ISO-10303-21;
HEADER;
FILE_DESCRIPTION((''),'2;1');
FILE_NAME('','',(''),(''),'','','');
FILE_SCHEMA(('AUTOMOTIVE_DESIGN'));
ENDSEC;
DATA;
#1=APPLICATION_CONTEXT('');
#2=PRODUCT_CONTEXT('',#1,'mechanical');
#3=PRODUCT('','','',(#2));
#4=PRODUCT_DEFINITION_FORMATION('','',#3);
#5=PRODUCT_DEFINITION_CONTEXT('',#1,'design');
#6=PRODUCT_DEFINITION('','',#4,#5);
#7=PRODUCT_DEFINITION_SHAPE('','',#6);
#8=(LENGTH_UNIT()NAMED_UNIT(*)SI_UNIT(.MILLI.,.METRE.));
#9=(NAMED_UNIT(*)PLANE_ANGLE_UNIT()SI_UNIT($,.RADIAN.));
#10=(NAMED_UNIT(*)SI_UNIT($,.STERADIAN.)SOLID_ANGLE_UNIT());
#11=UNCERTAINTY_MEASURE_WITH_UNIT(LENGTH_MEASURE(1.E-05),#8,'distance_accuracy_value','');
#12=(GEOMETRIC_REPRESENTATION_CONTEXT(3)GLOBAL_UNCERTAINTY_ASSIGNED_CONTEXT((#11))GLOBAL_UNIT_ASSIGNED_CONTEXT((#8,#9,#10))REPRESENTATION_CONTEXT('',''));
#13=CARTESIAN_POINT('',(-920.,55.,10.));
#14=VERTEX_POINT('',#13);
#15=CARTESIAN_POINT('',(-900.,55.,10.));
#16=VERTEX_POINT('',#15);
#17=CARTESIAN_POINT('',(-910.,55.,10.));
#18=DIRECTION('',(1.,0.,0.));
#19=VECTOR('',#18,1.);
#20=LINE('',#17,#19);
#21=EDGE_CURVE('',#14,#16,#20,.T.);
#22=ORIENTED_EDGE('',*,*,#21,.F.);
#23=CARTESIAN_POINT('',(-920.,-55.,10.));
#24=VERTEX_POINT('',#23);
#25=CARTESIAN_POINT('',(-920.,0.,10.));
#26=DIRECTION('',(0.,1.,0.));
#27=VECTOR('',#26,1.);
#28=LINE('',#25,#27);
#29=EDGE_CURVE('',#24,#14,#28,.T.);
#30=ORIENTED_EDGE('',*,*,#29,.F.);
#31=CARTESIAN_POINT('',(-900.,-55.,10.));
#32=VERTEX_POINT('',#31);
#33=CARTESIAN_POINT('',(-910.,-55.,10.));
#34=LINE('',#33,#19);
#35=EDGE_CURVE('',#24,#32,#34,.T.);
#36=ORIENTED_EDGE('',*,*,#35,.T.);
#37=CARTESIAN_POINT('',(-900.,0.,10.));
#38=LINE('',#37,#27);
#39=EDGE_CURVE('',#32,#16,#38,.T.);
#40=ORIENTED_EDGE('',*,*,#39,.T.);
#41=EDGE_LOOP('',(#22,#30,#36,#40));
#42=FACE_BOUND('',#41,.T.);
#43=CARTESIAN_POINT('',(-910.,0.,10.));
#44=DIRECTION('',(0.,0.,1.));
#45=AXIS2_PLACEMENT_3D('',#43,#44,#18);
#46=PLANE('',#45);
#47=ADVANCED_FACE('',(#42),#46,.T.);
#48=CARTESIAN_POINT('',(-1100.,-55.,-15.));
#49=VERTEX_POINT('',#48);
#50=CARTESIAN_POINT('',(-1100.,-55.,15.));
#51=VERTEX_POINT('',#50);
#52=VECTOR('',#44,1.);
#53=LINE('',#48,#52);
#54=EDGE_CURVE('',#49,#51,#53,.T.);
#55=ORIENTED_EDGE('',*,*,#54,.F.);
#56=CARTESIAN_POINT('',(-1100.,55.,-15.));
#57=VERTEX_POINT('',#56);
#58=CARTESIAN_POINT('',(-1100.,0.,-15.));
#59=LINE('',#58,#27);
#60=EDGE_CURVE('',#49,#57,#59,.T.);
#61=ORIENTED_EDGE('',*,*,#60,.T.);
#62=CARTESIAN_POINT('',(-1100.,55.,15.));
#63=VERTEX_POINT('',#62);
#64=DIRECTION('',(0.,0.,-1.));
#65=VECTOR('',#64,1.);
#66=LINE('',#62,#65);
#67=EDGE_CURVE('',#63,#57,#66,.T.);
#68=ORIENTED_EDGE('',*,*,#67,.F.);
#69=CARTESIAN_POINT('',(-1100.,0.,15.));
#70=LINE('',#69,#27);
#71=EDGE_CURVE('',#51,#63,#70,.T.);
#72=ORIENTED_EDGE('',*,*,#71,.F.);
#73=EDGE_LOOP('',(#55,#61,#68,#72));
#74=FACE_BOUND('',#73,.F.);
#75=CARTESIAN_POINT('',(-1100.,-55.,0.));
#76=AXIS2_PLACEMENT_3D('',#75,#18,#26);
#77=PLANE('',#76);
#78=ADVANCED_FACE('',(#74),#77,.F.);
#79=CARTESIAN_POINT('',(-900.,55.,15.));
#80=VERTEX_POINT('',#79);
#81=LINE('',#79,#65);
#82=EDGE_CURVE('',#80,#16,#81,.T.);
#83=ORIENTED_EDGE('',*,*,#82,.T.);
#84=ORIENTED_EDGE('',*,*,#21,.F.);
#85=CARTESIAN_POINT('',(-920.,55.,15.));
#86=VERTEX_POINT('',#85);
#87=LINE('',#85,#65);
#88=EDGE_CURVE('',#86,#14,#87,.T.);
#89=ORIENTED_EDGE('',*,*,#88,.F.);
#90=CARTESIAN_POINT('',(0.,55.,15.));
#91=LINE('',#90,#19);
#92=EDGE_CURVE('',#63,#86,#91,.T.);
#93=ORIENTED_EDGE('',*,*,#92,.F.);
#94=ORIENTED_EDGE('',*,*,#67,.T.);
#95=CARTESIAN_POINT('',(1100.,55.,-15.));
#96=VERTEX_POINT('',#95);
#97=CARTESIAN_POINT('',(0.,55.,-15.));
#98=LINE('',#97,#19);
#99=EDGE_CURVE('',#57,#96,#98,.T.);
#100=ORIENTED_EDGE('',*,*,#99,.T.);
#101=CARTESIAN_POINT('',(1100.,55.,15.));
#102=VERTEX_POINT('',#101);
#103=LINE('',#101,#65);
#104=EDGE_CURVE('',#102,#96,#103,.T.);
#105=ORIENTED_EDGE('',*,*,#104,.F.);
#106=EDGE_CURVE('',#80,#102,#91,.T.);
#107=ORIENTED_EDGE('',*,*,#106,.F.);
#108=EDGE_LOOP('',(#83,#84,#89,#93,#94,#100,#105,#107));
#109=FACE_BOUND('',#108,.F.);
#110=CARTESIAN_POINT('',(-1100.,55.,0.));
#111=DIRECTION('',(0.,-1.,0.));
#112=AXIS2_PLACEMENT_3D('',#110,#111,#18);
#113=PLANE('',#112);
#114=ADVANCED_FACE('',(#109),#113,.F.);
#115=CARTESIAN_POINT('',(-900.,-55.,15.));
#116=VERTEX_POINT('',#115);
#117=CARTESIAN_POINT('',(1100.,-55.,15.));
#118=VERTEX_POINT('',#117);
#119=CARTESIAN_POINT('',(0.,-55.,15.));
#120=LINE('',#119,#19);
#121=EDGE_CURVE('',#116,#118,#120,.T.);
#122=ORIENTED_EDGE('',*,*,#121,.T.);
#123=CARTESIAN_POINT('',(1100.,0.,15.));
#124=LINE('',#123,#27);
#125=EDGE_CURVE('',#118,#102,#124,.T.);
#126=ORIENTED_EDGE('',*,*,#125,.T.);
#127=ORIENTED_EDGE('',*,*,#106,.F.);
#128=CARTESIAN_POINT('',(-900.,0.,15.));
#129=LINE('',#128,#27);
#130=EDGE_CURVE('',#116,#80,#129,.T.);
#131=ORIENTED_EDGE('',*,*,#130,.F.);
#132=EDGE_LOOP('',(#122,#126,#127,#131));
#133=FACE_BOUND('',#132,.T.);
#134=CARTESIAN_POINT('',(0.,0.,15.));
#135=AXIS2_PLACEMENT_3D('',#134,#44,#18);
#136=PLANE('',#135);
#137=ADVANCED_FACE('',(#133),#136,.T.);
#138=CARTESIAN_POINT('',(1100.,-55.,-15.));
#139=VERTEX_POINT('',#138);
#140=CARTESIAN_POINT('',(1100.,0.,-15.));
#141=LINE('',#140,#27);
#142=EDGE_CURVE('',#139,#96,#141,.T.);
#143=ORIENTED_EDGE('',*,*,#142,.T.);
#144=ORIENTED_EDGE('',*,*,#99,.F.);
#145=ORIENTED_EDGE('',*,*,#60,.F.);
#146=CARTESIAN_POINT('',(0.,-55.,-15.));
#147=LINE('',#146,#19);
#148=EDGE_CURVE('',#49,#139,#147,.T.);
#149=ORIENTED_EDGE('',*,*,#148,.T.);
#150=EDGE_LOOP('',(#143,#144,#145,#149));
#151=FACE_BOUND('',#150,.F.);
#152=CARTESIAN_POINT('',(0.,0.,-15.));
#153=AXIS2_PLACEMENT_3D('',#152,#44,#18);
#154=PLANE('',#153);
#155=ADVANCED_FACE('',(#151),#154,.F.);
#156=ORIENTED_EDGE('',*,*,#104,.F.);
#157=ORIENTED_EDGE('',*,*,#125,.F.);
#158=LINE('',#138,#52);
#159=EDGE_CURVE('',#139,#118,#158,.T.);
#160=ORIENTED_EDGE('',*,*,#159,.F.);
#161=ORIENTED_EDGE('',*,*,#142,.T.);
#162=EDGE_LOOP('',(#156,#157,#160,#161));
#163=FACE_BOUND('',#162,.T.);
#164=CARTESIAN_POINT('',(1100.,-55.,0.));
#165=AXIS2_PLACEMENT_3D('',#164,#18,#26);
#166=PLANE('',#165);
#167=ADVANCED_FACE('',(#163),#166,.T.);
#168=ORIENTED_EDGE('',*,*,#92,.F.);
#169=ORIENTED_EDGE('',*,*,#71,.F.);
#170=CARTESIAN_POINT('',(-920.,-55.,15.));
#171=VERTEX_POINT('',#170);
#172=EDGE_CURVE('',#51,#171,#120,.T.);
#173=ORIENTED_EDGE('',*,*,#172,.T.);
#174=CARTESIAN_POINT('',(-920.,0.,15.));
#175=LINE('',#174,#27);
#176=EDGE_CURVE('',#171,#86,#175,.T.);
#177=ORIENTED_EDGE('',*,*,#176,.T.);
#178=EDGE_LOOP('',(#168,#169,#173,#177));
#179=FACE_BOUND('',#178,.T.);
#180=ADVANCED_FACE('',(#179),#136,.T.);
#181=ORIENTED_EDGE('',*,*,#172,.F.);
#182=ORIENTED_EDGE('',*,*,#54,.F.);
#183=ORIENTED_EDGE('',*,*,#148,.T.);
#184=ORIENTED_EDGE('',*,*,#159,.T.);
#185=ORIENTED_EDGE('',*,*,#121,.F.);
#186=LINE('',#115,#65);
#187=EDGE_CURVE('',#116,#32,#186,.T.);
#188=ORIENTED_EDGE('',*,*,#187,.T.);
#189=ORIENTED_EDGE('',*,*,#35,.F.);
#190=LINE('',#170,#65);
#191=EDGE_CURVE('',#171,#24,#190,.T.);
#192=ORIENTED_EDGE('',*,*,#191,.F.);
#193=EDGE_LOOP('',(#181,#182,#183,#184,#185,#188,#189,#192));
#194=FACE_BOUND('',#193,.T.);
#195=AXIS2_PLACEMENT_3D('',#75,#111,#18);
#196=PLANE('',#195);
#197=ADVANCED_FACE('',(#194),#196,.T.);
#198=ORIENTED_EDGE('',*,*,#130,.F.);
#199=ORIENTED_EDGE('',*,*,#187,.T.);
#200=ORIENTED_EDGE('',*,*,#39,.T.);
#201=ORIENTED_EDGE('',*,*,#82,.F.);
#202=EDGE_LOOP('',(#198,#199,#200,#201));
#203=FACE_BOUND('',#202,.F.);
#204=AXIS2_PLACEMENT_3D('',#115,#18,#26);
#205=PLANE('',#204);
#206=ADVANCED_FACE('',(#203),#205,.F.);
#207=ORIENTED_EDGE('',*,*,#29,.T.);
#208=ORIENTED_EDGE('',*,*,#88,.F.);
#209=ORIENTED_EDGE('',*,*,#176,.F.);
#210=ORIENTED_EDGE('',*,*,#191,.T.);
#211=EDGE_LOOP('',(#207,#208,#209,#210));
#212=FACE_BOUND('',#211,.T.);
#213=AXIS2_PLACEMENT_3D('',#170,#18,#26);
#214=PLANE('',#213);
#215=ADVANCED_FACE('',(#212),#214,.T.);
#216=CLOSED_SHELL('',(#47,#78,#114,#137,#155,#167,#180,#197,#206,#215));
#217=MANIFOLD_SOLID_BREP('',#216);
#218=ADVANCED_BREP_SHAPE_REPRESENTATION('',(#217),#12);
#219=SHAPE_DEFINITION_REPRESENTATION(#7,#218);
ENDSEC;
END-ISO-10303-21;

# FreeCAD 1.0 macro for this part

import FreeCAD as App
import Part
import Sketcher
from FreeCAD import Vector

doc = App.newDocument("Part")
params = doc.addObject("Spreadsheet::Sheet", "Params")
for row, (alias, value) in enumerate([
    ("sketch1_width", "2200 mm"),
    ("sketch1_height", "110 mm"),
    ("pad1_length", "30 mm"),
    ("sketch2_width", "20 mm"),
    ("sketch2_height", "110 mm"),
    ("pocket1_length", "5 mm"),
], start=1):
    params.set(f"A{row}", alias)
    params.set(f"B{row}", "=" + value)
    params.setAlias(f"B{row}", alias)

body = doc.addObject("PartDesign::Body", "Body")

sketch1 = doc.addObject("Sketcher::SketchObject", "Sketch")
body.addObject(sketch1)
sketch1.AttachmentSupport = (doc.XY_Plane, [""])
sketch1.MapMode = "FlatFace"
sketch1.addGeometry(Part.LineSegment(Vector(-1100, 55, 0), Vector(-1100, -55, 0)), False)
sketch1.addGeometry(Part.LineSegment(Vector(-1100, -55, 0), Vector(1100, -55, 0)), False)
sketch1.addGeometry(Part.LineSegment(Vector(1100, -55, 0), Vector(1100, 55, 0)), False)
sketch1.addGeometry(Part.LineSegment(Vector(1100, 55, 0), Vector(-1100, 55, 0)), False)
sketch1.addConstraint(Sketcher.Constraint("Coincident", 0, 2, 1, 1))
sketch1.addConstraint(Sketcher.Constraint("Coincident", 1, 2, 2, 1))
sketch1.addConstraint(Sketcher.Constraint("Coincident", 2, 2, 3, 1))
sketch1.addConstraint(Sketcher.Constraint("Coincident", 3, 2, 0, 1))
sketch1.addConstraint(Sketcher.Constraint("Vertical", 0))
sketch1.addConstraint(Sketcher.Constraint("Horizontal", 1))
sketch1.addConstraint(Sketcher.Constraint("Vertical", 2))
sketch1.addConstraint(Sketcher.Constraint("Horizontal", 3))
sketch1.addConstraint(Sketcher.Constraint("Symmetric", 0, 2, 2, 2, -1, 1))
sketch1.addConstraint(Sketcher.Constraint("DistanceX", 1, 1, 1, 2, 2200.0))
sketch1.addConstraint(Sketcher.Constraint("DistanceY", 0, 2, 0, 1, 110.0))
sketch1.setExpression("Constraints[9]", "Params.sketch1_width")
sketch1.setExpression("Constraints[10]", "Params.sketch1_height")
pad1 = doc.addObject("PartDesign::Pad", "Pad")
body.addObject(pad1)
pad1.Profile = sketch1
pad1.setExpression("Length", "Params.pad1_length")
pad1.Midplane = True

sketch2 = doc.addObject("Sketcher::SketchObject", "Sketch001")
body.addObject(sketch2)
sketch2.AttachmentSupport = (doc.XY_Plane, [""])
sketch2.MapMode = "FlatFace"
sketch2.AttachmentOffset = App.Placement(Vector(0, 0, 15), App.Rotation())
sketch2.addGeometry(Part.LineSegment(Vector(-920, 55, 0), Vector(-920, -55, 0)), False)
sketch2.addGeometry(Part.LineSegment(Vector(-920, -55, 0), Vector(-900, -55, 0)), False)
sketch2.addGeometry(Part.LineSegment(Vector(-900, -55, 0), Vector(-900, 55, 0)), False)
sketch2.addGeometry(Part.LineSegment(Vector(-900, 55, 0), Vector(-920, 55, 0)), False)
sketch2.addConstraint(Sketcher.Constraint("Coincident", 0, 2, 1, 1))
sketch2.addConstraint(Sketcher.Constraint("Coincident", 1, 2, 2, 1))
sketch2.addConstraint(Sketcher.Constraint("Coincident", 2, 2, 3, 1))
sketch2.addConstraint(Sketcher.Constraint("Coincident", 3, 2, 0, 1))
sketch2.addConstraint(Sketcher.Constraint("Vertical", 0))
sketch2.addConstraint(Sketcher.Constraint("Horizontal", 1))
sketch2.addConstraint(Sketcher.Constraint("Vertical", 2))
sketch2.addConstraint(Sketcher.Constraint("Horizontal", 3))
sketch2.addConstraint(Sketcher.Constraint("DistanceX", 1, 1, 1, 2, 20.0))
sketch2.addConstraint(Sketcher.Constraint("DistanceY", 0, 2, 0, 1, 110.0))
sketch2.addConstraint(Sketcher.Constraint("DistanceX", 0, 2, -1, 1, 920.0))
sketch2.addConstraint(Sketcher.Constraint("DistanceY", 0, 2, -1, 1, 55.0))
sketch2.setExpression("Constraints[8]", "Params.sketch2_width")
sketch2.setExpression("Constraints[9]", "Params.sketch2_height")
pocket1 = doc.addObject("PartDesign::Pocket", "Pocket")
body.addObject(pocket1)
pocket1.Profile = sketch2
pocket1.setExpression("Length", "Params.pocket1_length")

doc.recompute()
